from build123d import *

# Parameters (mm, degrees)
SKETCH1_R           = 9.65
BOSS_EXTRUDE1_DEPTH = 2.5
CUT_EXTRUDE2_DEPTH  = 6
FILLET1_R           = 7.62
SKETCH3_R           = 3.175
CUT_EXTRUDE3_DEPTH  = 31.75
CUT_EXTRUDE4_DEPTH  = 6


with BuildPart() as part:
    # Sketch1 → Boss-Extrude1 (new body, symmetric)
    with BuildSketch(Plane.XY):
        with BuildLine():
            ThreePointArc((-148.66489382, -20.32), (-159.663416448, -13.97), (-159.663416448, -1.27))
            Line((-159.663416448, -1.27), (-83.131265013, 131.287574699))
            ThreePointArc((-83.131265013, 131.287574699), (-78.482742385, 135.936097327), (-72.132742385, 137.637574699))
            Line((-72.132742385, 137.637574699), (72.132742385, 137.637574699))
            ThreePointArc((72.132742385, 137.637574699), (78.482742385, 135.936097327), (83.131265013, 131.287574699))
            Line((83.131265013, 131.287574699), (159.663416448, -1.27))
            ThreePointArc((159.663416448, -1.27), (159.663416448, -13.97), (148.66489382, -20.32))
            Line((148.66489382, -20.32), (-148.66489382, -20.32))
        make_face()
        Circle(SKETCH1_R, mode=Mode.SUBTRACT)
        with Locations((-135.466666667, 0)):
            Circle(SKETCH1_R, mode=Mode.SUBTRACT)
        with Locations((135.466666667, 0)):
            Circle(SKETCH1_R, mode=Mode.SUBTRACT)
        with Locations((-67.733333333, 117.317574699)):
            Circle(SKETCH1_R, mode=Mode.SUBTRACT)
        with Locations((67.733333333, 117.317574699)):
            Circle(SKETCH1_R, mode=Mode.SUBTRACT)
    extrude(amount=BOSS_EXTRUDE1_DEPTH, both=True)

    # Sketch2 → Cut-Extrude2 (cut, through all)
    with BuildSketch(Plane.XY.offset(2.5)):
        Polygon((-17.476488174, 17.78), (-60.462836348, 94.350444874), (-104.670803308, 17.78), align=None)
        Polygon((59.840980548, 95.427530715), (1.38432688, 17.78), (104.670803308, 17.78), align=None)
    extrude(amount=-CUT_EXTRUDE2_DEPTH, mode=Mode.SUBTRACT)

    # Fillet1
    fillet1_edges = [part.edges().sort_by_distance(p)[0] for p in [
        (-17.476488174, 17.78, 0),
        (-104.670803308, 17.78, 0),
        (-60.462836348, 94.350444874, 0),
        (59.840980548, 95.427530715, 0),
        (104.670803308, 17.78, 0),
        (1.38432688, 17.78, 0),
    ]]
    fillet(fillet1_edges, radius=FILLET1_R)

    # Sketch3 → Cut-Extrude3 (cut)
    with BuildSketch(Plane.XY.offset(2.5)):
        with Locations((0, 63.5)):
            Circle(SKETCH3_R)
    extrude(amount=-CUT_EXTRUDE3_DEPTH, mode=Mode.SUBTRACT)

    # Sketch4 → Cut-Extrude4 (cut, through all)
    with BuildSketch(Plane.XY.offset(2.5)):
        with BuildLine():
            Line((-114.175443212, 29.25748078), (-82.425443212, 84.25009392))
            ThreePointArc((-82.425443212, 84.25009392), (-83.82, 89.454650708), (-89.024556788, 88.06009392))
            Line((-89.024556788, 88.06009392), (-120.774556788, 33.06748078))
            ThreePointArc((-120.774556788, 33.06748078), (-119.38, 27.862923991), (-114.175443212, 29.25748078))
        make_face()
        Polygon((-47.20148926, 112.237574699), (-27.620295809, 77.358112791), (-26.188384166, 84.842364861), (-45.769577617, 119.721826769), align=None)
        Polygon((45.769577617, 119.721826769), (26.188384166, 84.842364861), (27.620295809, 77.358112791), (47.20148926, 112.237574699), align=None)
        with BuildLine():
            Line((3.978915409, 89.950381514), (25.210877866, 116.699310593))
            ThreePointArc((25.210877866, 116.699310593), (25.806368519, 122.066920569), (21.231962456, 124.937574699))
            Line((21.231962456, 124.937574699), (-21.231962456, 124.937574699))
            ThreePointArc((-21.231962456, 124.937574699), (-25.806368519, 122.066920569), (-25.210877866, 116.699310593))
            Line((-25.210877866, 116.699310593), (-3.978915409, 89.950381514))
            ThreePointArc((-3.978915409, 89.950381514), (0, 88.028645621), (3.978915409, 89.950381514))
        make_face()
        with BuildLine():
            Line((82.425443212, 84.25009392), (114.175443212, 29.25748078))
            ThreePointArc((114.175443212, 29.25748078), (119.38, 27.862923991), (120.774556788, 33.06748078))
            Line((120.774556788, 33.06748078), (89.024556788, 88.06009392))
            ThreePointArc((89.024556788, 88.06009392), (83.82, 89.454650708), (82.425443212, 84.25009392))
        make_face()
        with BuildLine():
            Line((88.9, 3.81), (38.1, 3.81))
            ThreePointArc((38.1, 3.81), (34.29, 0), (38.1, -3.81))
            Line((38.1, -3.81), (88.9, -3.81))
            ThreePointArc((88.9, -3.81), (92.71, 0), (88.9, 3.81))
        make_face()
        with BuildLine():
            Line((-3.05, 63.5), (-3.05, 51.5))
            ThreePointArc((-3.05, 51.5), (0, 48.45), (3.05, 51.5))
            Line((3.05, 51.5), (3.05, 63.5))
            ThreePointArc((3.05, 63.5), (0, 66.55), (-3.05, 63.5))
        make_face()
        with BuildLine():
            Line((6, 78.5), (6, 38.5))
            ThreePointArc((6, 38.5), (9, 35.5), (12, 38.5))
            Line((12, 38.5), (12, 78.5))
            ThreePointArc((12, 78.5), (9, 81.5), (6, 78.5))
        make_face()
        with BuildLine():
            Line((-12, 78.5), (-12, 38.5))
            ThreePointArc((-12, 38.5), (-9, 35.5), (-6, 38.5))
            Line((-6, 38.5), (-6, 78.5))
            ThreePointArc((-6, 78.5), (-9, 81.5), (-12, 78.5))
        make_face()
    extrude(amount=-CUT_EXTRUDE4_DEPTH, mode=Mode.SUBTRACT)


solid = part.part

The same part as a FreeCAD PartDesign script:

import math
import FreeCAD as App
import Part
import Sketcher
from FreeCAD import Vector
Q = App.Units.Quantity


def edges_at(feature, points):
    """Names of the edges that pass closest to the given points."""
    edges = feature.Shape.Edges
    near = lambda p: min(range(len(edges)), key=lambda i: edges[i].distToShape(Part.Vertex(*p))[0])
    return sorted({f"Edge{near(p) + 1}" for p in points})


def add_polygon(sketch, points):
    """Adds a closed chain of lines whose ends are joined by coincident constraints."""
    first, n = sketch.GeometryCount, len(points)
    for a, b in zip(points, points[1:] + points[:1]):
        sketch.addGeometry(Part.LineSegment(App.Vector(*a, 0), App.Vector(*b, 0)), False)
    for i in range(n):
        sketch.addConstraint(Sketcher.Constraint("Coincident", first + i, 2, first + (i + 1) % n, 1))

doc = App.newDocument("Part")
body = doc.addObject("PartDesign::Body", "Body")

# Sketch on XY plane
sketch1 = body.newObject("Sketcher::SketchObject", "Sketch")
sketch1.AttachmentSupport = (doc.getObject("XY_Plane"), [""])
sketch1.MapMode = "FlatFace"
sketch1.addGeometry([
    Part.ArcOfCircle(Part.Circle(Vector(-149, -8, 0), Vector(0, 0, 1), 13), math.radians(150), math.radians(270)),  # 0
    Part.LineSegment(Vector(-149, -20, 0), Vector(149, -20, 0)),  # 1
    Part.ArcOfCircle(Part.Circle(Vector(149, -8, 0), Vector(0, 0, 1), 13), math.radians(-90), math.radians(30)),  # 2
    Part.LineSegment(Vector(160, -1, 0), Vector(83, 131, 0)),  # 3
    Part.ArcOfCircle(Part.Circle(Vector(72, 125, 0), Vector(0, 0, 1), 13), math.radians(30), math.radians(90)),  # 4
    Part.LineSegment(Vector(72, 138, 0), Vector(-72, 138, 0)),  # 5
    Part.ArcOfCircle(Part.Circle(Vector(-72, 125, 0), Vector(0, 0, 1), 13), math.radians(90), math.radians(150)),  # 6
    Part.LineSegment(Vector(-83, 131, 0), Vector(-160, -1, 0)),  # 7
    Part.Circle(Vector(135, 0, 0), Vector(0, 0, 1), 10),  # 8
    Part.Circle(Vector(0, 0, 0), Vector(0, 0, 1), 10),  # 9
    Part.Circle(Vector(-135, 0, 0), Vector(0, 0, 1), 10),  # 10
    Part.Circle(Vector(68, 117, 0), Vector(0, 0, 1), 10),  # 11
    Part.Circle(Vector(-68, 117, 0), Vector(0, 0, 1), 10),  # 12
], False)
sketch1.addConstraint([
    Sketcher.Constraint("Tangent", 0, 2, 1, 1),
    Sketcher.Constraint("Tangent", 1, 2, 2, 1),
    Sketcher.Constraint("Tangent", 2, 2, 3, 1),
    Sketcher.Constraint("Tangent", 3, 2, 4, 1),
    Sketcher.Constraint("Tangent", 4, 2, 5, 1),
    Sketcher.Constraint("Tangent", 5, 2, 6, 1),
    Sketcher.Constraint("Tangent", 6, 2, 7, 1),
    Sketcher.Constraint("Tangent", 7, 2, 0, 1),
    Sketcher.Constraint("Horizontal", 1),
    Sketcher.Constraint("Horizontal", 5),
    Sketcher.Constraint("Coincident", 9, 3, -1, 1),
    Sketcher.Constraint("Equal", 0, 2),
    Sketcher.Constraint("Equal", 2, 4),
    Sketcher.Constraint("Equal", 4, 6),
    Sketcher.Constraint("Equal", 8, 9),
    Sketcher.Constraint("Equal", 9, 10),
    Sketcher.Constraint("Equal", 10, 11),
    Sketcher.Constraint("Equal", 11, 12),
    Sketcher.Constraint("Symmetric", 8, 3, 10, 3, -1, 1),
    Sketcher.Constraint("Symmetric", 11, 3, 12, 3, -2),
    Sketcher.Constraint("Symmetric", 3, 2, 6, 2, -2),
    Sketcher.Constraint("PointOnObject", 8, 3, -1),
    Sketcher.Constraint("Radius", 0, Q("0.5 in")),
    Sketcher.Constraint("Angle", 3, Q("120 deg")),
    Sketcher.Constraint("DistanceY", 0, 3, -1, 1, Q("0.3 in")),
    Sketcher.Constraint("DistanceY", 11, 3, 4, 3, Q("0.3 in")),
    Sketcher.Constraint("Diameter", 8, 19.3),
    Sketcher.Constraint("DistanceX", 3, 2, 8, 3, 52.335402),
    Sketcher.Constraint("DistanceX", 12, 3, 3, 2, 150.864598),
    Sketcher.Constraint("DistanceX", 1, 1, 1, 2, 297.329788),
    Sketcher.Constraint("DistanceX", 5, 2, 5, 1, 144.265485),
])
pad1 = body.newObject("PartDesign::Pad", "Pad")
pad1.Profile = sketch1
pad1.Length = 5
pad1.Midplane = True

# Sketch on XY plane
sketch2 = body.newObject("Sketcher::SketchObject", "Sketch001")
sketch2.AttachmentSupport = (doc.getObject("XY_Plane"), [""])
sketch2.MapMode = "FlatFace"
sketch2.AttachmentOffset = App.Placement(Vector(0, 0, 2.5), App.Rotation())
add_polygon(sketch2, [(-17, 18), (-60, 94), (-105, 18)])  # lines 0-2
add_polygon(sketch2, [(60, 95), (1, 18), (105, 18)])  # lines 3-5
sketch2.addConstraint([
    Sketcher.Constraint("Horizontal", 2),
    Sketcher.Constraint("Horizontal", 4),
    Sketcher.Constraint("Symmetric", 1, 2, 4, 2, -2),
    Sketcher.Constraint("Angle", 1, Q("-120 deg")),
    Sketcher.Constraint("Angle", 5, Q("120 deg")),
    Sketcher.Constraint("DistanceY", -1, 1, 1, 2, Q("0.7 in")),
    Sketcher.Constraint("DistanceX", 2, 1, 2, 2, 87.194315),
    Sketcher.Constraint("DistanceX", 4, 1, 4, 2, 103.286476),
    Sketcher.Constraint("DistanceX", 2, 2, -1, 1, 17.476488),
    Sketcher.Constraint("DistanceX", -1, 1, 5, 2, 59.840981),
    Sketcher.Constraint("DistanceX", 0, 2, 2, 2, 42.986348),
])
pocket1 = body.newObject("PartDesign::Pocket", "Pocket")
pocket1.Profile = sketch2
pocket1.Type = "ThroughAll"
doc.recompute()

fillet = body.newObject("PartDesign::Fillet", "Fillet")
fillet.Base = (pocket1, edges_at(pocket1, [
    (-17.476, 17.78, 0),
    (-104.671, 17.78, 0),
    (-60.463, 94.35, 0),
    (59.841, 95.428, 0),
    (104.671, 17.78, 0),
    (1.384, 17.78, 0),
]))
fillet.Radius = Q("0.3 in")

# Sketch on XY plane
sketch3 = body.newObject("Sketcher::SketchObject", "Sketch002")
sketch3.AttachmentSupport = (doc.getObject("XY_Plane"), [""])
sketch3.MapMode = "FlatFace"
sketch3.AttachmentOffset = App.Placement(Vector(0, 0, 2.5), App.Rotation())
sketch3.addGeometry(Part.Circle(Vector(0, 63.5, 0), Vector(0, 0, 1), 3.2), False)
sketch3.addConstraint([
    Sketcher.Constraint("PointOnObject", 0, 3, -2),
    Sketcher.Constraint("Diameter", 0, Q("0.25 in")),
    Sketcher.Constraint("DistanceY", -1, 1, 0, 3, Q("2.5 in")),
])
pocket2 = body.newObject("PartDesign::Pocket", "Pocket001")
pocket2.Profile = sketch3
pocket2.Length = Q("1.25 in")

# Sketch on XY plane
sketch4 = body.newObject("Sketcher::SketchObject", "Sketch003")
sketch4.AttachmentSupport = (doc.getObject("XY_Plane"), [""])
sketch4.MapMode = "FlatFace"
sketch4.AttachmentOffset = App.Placement(Vector(0, 0, 2.5), App.Rotation())
sketch4.addGeometry(Part.LineSegment(Vector(-114.2, 29.3, 0), Vector(-82.4, 84.3, 0)), False)  # 0
sketch4.addGeometry(Part.ArcOfCircle(Part.Circle(Vector(-85.7, 86.2, 0), Vector(0, 0, 1), 3.8), math.radians(-30), math.radians(150)), False)  # 1
sketch4.addGeometry(Part.LineSegment(Vector(-89, 88.1, 0), Vector(-120.8, 33.1, 0)), False)  # 2
sketch4.addGeometry(Part.ArcOfCircle(Part.Circle(Vector(-117.5, 31.2, 0), Vector(0, 0, 1), 3.8), math.radians(150), math.radians(330)), False)  # 3
add_polygon(sketch4, [(-47.2, 112.2), (-27.6, 77.4), (-26.2, 84.8), (-45.8, 119.7)])  # lines 4-7
add_polygon(sketch4, [(45.8, 119.7), (26.2, 84.8), (27.6, 77.4), (47.2, 112.2)])  # lines 8-11
sketch4.addGeometry(Part.LineSegment(Vector(4, 90, 0), Vector(25.2, 116.7, 0)), False)  # 12
sketch4.addGeometry(Part.ArcOfCircle(Part.Circle(Vector(21.2, 119.9, 0), Vector(0, 0, 1), 5.1), math.radians(-38), math.radians(90)), False)  # 13
sketch4.addGeometry(Part.LineSegment(Vector(21.2, 124.9, 0), Vector(-21.2, 124.9, 0)), False)  # 14
sketch4.addGeometry(Part.ArcOfCircle(Part.Circle(Vector(-21.2, 119.9, 0), Vector(0, 0, 1), 5.1), math.radians(90), math.radians(218)), False)  # 15
sketch4.addGeometry(Part.LineSegment(Vector(-25.2, 116.7, 0), Vector(-4, 90, 0)), False)  # 16
sketch4.addGeometry(Part.ArcOfCircle(Part.Circle(Vector(0, 93.1, 0), Vector(0, 0, 1), 5.1), math.radians(-142), math.radians(-38)), False)  # 17
sketch4.addGeometry(Part.LineSegment(Vector(82.4, 84.3, 0), Vector(114.2, 29.3, 0)), False)  # 18
sketch4.addGeometry(Part.ArcOfCircle(Part.Circle(Vector(117.5, 31.2, 0), Vector(0, 0, 1), 3.8), math.radians(-150), math.radians(30)), False)  # 19
sketch4.addGeometry(Part.LineSegment(Vector(120.8, 33.1, 0), Vector(89, 88.1, 0)), False)  # 20
sketch4.addGeometry(Part.ArcOfCircle(Part.Circle(Vector(85.7, 86.2, 0), Vector(0, 0, 1), 3.8), math.radians(30), math.radians(210)), False)  # 21
sketch4.addGeometry(Part.LineSegment(Vector(88.9, 3.8, 0), Vector(38.1, 3.8, 0)), False)  # 22
sketch4.addGeometry(Part.ArcOfCircle(Part.Circle(Vector(38.1, 0, 0), Vector(0, 0, 1), 3.8), math.radians(90), math.radians(270)), False)  # 23
sketch4.addGeometry(Part.LineSegment(Vector(38.1, -3.8, 0), Vector(88.9, -3.8, 0)), False)  # 24
sketch4.addGeometry(Part.ArcOfCircle(Part.Circle(Vector(88.9, 0, 0), Vector(0, 0, 1), 3.8), math.radians(-90), math.radians(90)), False)  # 25
sketch4.addGeometry(Part.LineSegment(Vector(-3, 63.5, 0), Vector(-3, 51.5, 0)), False)  # 26
sketch4.addGeometry(Part.ArcOfCircle(Part.Circle(Vector(0, 51.5, 0), Vector(0, 0, 1), 3), math.radians(180), math.radians(360)), False)  # 27
sketch4.addGeometry(Part.LineSegment(Vector(3, 51.5, 0), Vector(3, 63.5, 0)), False)  # 28
sketch4.addGeometry(Part.ArcOfCircle(Part.Circle(Vector(0, 63.5, 0), Vector(0, 0, 1), 3), math.radians(0), math.radians(180)), False)  # 29
sketch4.addGeometry(Part.LineSegment(Vector(6, 78.5, 0), Vector(6, 38.5, 0)), False)  # 30
sketch4.addGeometry(Part.ArcOfCircle(Part.Circle(Vector(9, 38.5, 0), Vector(0, 0, 1), 3), math.radians(180), math.radians(360)), False)  # 31
sketch4.addGeometry(Part.LineSegment(Vector(12, 38.5, 0), Vector(12, 78.5, 0)), False)  # 32
sketch4.addGeometry(Part.ArcOfCircle(Part.Circle(Vector(9, 78.5, 0), Vector(0, 0, 1), 3), math.radians(0), math.radians(180)), False)  # 33
sketch4.addGeometry(Part.LineSegment(Vector(-12, 78.5, 0), Vector(-12, 38.5, 0)), False)  # 34
sketch4.addGeometry(Part.ArcOfCircle(Part.Circle(Vector(-9, 38.5, 0), Vector(0, 0, 1), 3), math.radians(180), math.radians(360)), False)  # 35
sketch4.addGeometry(Part.LineSegment(Vector(-6, 38.5, 0), Vector(-6, 78.5, 0)), False)  # 36
sketch4.addGeometry(Part.ArcOfCircle(Part.Circle(Vector(-9, 78.5, 0), Vector(0, 0, 1), 3), math.radians(0), math.radians(180)), False)  # 37
sketch4.addConstraint([
    Sketcher.Constraint("Tangent", 0, 2, 1, 1),
    Sketcher.Constraint("Tangent", 1, 2, 2, 1),
    Sketcher.Constraint("Tangent", 2, 2, 3, 1),
    Sketcher.Constraint("Tangent", 3, 2, 0, 1),
    Sketcher.Constraint("Tangent", 12, 2, 13, 1),
    Sketcher.Constraint("Tangent", 13, 2, 14, 1),
    Sketcher.Constraint("Tangent", 14, 2, 15, 1),
    Sketcher.Constraint("Tangent", 15, 2, 16, 1),
    Sketcher.Constraint("Tangent", 16, 2, 17, 1),
    Sketcher.Constraint("Tangent", 17, 2, 12, 1),
    Sketcher.Constraint("Tangent", 18, 2, 19, 1),
    Sketcher.Constraint("Tangent", 19, 2, 20, 1),
    Sketcher.Constraint("Tangent", 20, 2, 21, 1),
    Sketcher.Constraint("Tangent", 21, 2, 18, 1),
    Sketcher.Constraint("Tangent", 22, 2, 23, 1),
    Sketcher.Constraint("Tangent", 23, 2, 24, 1),
    Sketcher.Constraint("Tangent", 24, 2, 25, 1),
    Sketcher.Constraint("Tangent", 25, 2, 22, 1),
    Sketcher.Constraint("Tangent", 26, 2, 27, 1),
    Sketcher.Constraint("Tangent", 27, 2, 28, 1),
    Sketcher.Constraint("Tangent", 28, 2, 29, 1),
    Sketcher.Constraint("Tangent", 29, 2, 26, 1),
    Sketcher.Constraint("Tangent", 30, 2, 31, 1),
    Sketcher.Constraint("Tangent", 31, 2, 32, 1),
    Sketcher.Constraint("Tangent", 32, 2, 33, 1),
    Sketcher.Constraint("Tangent", 33, 2, 30, 1),
    Sketcher.Constraint("Tangent", 34, 2, 35, 1),
    Sketcher.Constraint("Tangent", 35, 2, 36, 1),
    Sketcher.Constraint("Tangent", 36, 2, 37, 1),
    Sketcher.Constraint("Tangent", 37, 2, 34, 1),
    Sketcher.Constraint("Horizontal", 14),
    Sketcher.Constraint("Horizontal", 22),
    Sketcher.Constraint("Horizontal", 24),
    Sketcher.Constraint("Vertical", 26),
    Sketcher.Constraint("Vertical", 28),
    Sketcher.Constraint("Vertical", 30),
    Sketcher.Constraint("Vertical", 32),
    Sketcher.Constraint("Vertical", 34),
    Sketcher.Constraint("Vertical", 36),
    Sketcher.Constraint("Equal", 1, 3),
    Sketcher.Constraint("Equal", 13, 15),
    Sketcher.Constraint("Equal", 15, 17),
    Sketcher.Constraint("Equal", 3, 19),
    Sketcher.Constraint("Equal", 19, 21),
    Sketcher.Constraint("Equal", 21, 23),
    Sketcher.Constraint("Equal", 33, 35),
    Sketcher.Constraint("Symmetric", 3, 3, 19, 3, -2),
    Sketcher.Constraint("Symmetric", 1, 3, 21, 3, -2),
    Sketcher.Constraint("Symmetric", 31, 3, 35, 3, -2),
    Sketcher.Constraint("Symmetric", 5, 2, 8, 2, -2),
    Sketcher.Constraint("Symmetric", 4, 2, 9, 2, -2),
    Sketcher.Constraint("Symmetric", 7, 2, 10, 2, -2),
    Sketcher.Constraint("Symmetric", 6, 2, 11, 2, -2),
    Sketcher.Constraint("Symmetric", 12, 2, 15, 2, -2),
    Sketcher.Constraint("PointOnObject", 23, 3, -1),
    Sketcher.Constraint("PointOnObject", 27, 3, -2),
    Sketcher.Constraint("Parallel", 4, 6),
    Sketcher.Constraint("Parallel", 5, 7),
    Sketcher.Constraint("Horizontal", 33, 3, 37, 3),
    Sketcher.Constraint("Radius", 13, Q("0.2 in")),
    Sketcher.Constraint("DistanceX", 22, 2, 22, 1, Q("2 in")),
    Sketcher.Constraint("Radius", 1, Q("0.15 in")),
    Sketcher.Constraint("Angle", 0, Q("60 deg")),
    Sketcher.Constraint("DistanceX", 1, 3, 19, 3, Q("8 in")),
    Sketcher.Constraint("Distance", 0, Q("2.5 in")),
    Sketcher.Constraint("Distance", 5, Q("0.3 in")),
    Sketcher.Constraint("DistanceX", -1, 1, 23, 3, Q("1.5 in")),
    Sketcher.Constraint("DistanceY", -1, 1, 29, 3, Q("2.5 in")),
    Sketcher.Constraint("DistanceY", 7, 2, 15, 3, Q("0.3 in")),
    Sketcher.Constraint("Radius", 27, 3.05),
    Sketcher.Constraint("Radius", 31, 3.0),
    Sketcher.Constraint("DistanceY", 26, 2, 26, 1, 12.0),
    Sketcher.Constraint("DistanceY", 30, 2, 30, 1, 40.0),
    Sketcher.Constraint("Distance", 4, 40.0),
    Sketcher.Constraint("DistanceX", -1, 1, 31, 3, 9.0),
    Sketcher.Constraint("DistanceY", -1, 1, 31, 3, 38.5),
    Sketcher.Constraint("DistanceX", 12, 2, 11, 2, 20.5587),
    Sketcher.Constraint("DistanceX", 14, 2, 14, 1, 42.463925),
    Sketcher.Constraint("DistanceY", -1, 1, 3, 3, 31.162481),
    Sketcher.Constraint("DistanceX", 7, 2, -1, 1, 47.201489),
    Sketcher.Constraint("DistanceY", -1, 1, 12, 2, 116.699311),
    Sketcher.Constraint("DistanceY", -1, 1, 16, 2, 89.950382),
    Sketcher.Constraint("DistanceY", 5, 2, 17, 3, 8.266281),
])
pocket3 = body.newObject("PartDesign::Pocket", "Pocket002")
pocket3.Profile = sketch4
pocket3.Type = "ThroughAll"

doc.recompute()
